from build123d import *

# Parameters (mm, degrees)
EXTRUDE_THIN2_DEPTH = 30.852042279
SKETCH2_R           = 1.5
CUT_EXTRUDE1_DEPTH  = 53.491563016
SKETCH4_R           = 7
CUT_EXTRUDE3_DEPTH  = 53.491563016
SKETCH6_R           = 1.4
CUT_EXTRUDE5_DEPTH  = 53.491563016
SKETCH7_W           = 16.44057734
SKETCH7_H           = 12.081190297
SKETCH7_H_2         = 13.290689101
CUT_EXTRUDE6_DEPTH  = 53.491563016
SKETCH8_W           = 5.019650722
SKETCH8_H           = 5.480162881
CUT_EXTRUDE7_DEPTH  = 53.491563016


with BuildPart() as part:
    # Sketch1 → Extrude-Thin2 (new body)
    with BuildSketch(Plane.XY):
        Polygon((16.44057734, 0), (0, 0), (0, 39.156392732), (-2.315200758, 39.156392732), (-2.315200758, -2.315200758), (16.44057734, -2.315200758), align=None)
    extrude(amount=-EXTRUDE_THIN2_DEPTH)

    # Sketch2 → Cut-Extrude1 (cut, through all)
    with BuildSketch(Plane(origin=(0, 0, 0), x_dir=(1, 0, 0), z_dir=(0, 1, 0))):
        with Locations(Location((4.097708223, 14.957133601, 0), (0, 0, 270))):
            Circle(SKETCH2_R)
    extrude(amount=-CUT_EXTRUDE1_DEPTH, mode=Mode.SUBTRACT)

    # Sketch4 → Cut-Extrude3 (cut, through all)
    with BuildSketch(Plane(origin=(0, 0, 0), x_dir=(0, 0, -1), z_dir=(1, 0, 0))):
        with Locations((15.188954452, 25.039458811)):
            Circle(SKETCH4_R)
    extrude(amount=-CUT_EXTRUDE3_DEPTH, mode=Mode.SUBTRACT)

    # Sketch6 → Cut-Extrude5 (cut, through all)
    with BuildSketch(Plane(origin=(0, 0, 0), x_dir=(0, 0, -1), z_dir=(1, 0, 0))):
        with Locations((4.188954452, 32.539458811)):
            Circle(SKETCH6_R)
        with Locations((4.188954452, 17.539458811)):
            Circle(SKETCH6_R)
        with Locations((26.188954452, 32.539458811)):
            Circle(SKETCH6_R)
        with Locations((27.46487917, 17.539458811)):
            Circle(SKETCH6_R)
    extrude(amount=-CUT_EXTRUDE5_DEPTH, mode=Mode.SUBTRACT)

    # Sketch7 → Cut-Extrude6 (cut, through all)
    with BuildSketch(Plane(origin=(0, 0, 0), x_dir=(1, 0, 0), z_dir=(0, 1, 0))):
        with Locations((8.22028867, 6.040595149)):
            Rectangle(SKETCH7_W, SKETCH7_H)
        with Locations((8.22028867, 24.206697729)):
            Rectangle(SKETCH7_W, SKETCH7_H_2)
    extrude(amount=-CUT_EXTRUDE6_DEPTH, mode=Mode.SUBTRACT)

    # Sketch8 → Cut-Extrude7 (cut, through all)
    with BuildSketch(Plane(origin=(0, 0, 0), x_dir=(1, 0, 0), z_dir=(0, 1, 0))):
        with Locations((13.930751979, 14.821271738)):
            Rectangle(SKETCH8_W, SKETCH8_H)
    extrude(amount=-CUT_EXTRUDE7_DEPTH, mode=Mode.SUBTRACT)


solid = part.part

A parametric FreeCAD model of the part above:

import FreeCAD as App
import Part
import Sketcher
from FreeCAD import Vector


def add_polygon(sketch, points):
    """Adds a closed chain of lines whose ends are joined by coincident constraints."""
    first, n = sketch.GeometryCount, len(points)
    for a, b in zip(points, points[1:] + points[:1]):
        sketch.addGeometry(Part.LineSegment(App.Vector(*a, 0), App.Vector(*b, 0)), False)
    for i in range(n):
        sketch.addConstraint(Sketcher.Constraint("Coincident", first + i, 2, first + (i + 1) % n, 1))

doc = App.newDocument("Part")
body = doc.addObject("PartDesign::Body", "Body")

# Sketch on XY plane
sketch1 = body.newObject("Sketcher::SketchObject", "Sketch")
sketch1.AttachmentSupport = (doc.getObject("XY_Plane"), [""])
sketch1.MapMode = "FlatFace"
add_polygon(sketch1, [(16.4, 0), (0, 0), (0, 39.2), (-2.3, 39.2), (-2.3, -2.3), (16.4, -2.3)])  # lines 0-5
sketch1.addConstraint(Sketcher.Constraint("Horizontal", 0))
sketch1.addConstraint(Sketcher.Constraint("Vertical", 1))
sketch1.addConstraint(Sketcher.Constraint("Horizontal", 2))
sketch1.addConstraint(Sketcher.Constraint("Vertical", 3))
sketch1.addConstraint(Sketcher.Constraint("Horizontal", 4))
sketch1.addConstraint(Sketcher.Constraint("Vertical", 5))
sketch1.addConstraint(Sketcher.Constraint("Coincident", 0, 2, -1, 1))
sketch1.addConstraint(Sketcher.Constraint("Equal", 2, 5))
sketch1.addConstraint(Sketcher.Constraint("DistanceX", 2, 2, 2, 1, 2.315201))
sketch1.addConstraint(Sketcher.Constraint("DistanceX", 4, 1, 4, 2, 18.755778))
sketch1.addConstraint(Sketcher.Constraint("DistanceY", 1, 1, 1, 2, 39.156393))
pad1 = body.newObject("PartDesign::Pad", "Pad")
pad1.Profile = sketch1
pad1.Length = 30.852042
pad1.Reversed = True

# Sketch on XZ plane
sketch2 = body.newObject("Sketcher::SketchObject", "Sketch001")
sketch2.AttachmentSupport = (doc.getObject("XZ_Plane"), [""])
sketch2.MapMode = "FlatFace"
sketch2.addGeometry(Part.Circle(Vector(4.1, -15, 0), Vector(0, 0, 1), 1.5), False)
sketch2.addConstraint(Sketcher.Constraint("Diameter", 0, 3.0))
sketch2.addConstraint(Sketcher.Constraint("DistanceX", -1, 1, 0, 3, 4.097708))
sketch2.addConstraint(Sketcher.Constraint("DistanceY", 0, 3, -1, 1, 14.957134))
pocket1 = body.newObject("PartDesign::Pocket", "Pocket")
pocket1.Profile = sketch2
pocket1.Type = "ThroughAll"
pocket1.Reversed = True

# Sketch on YZ plane
sketch3 = body.newObject("Sketcher::SketchObject", "Sketch002")
sketch3.AttachmentSupport = (doc.getObject("YZ_Plane"), [""])
sketch3.MapMode = "FlatFace"
sketch3.addGeometry(Part.Circle(Vector(25, -15, 0), Vector(0, 0, 1), 7), False)
sketch3.addConstraint(Sketcher.Constraint("Diameter", 0, 14.0))
sketch3.addConstraint(Sketcher.Constraint("DistanceX", -1, 1, 0, 3, 25.039459))
sketch3.addConstraint(Sketcher.Constraint("DistanceY", 0, 3, -1, 1, 15.188954))
pocket2 = body.newObject("PartDesign::Pocket", "Pocket001")
pocket2.Profile = sketch3
pocket2.Type = "ThroughAll"

# Sketch on YZ plane
sketch4 = body.newObject("Sketcher::SketchObject", "Sketch003")
sketch4.AttachmentSupport = (doc.getObject("YZ_Plane"), [""])
sketch4.MapMode = "FlatFace"
sketch4.addGeometry(Part.Circle(Vector(32.5, -4.2, 0), Vector(0, 0, 1), 1.4), False)
sketch4.addGeometry(Part.Circle(Vector(17.5, -4.2, 0), Vector(0, 0, 1), 1.4), False)
sketch4.addGeometry(Part.Circle(Vector(32.5, -26.2, 0), Vector(0, 0, 1), 1.4), False)
sketch4.addGeometry(Part.Circle(Vector(17.5, -27.5, 0), Vector(0, 0, 1), 1.4), False)
sketch4.addConstraint(Sketcher.Constraint("Equal", 0, 1))
sketch4.addConstraint(Sketcher.Constraint("Equal", 1, 2))
sketch4.addConstraint(Sketcher.Constraint("Equal", 2, 3))
sketch4.addConstraint(Sketcher.Constraint("Horizontal", 0, 3, 1, 3))
sketch4.addConstraint(Sketcher.Constraint("Vertical", 0, 3, 2, 3))
sketch4.addConstraint(Sketcher.Constraint("Vertical", 1, 3, 3, 3))
sketch4.addConstraint(Sketcher.Constraint("Diameter", 0, 2.8))
sketch4.addConstraint(Sketcher.Constraint("DistanceX", 1, 3, 0, 3, 15.0))
sketch4.addConstraint(Sketcher.Constraint("DistanceY", 2, 3, 0, 3, 22.0))
sketch4.addConstraint(Sketcher.Constraint("DistanceX", -1, 1, 0, 3, 32.539459))
sketch4.addConstraint(Sketcher.Constraint("DistanceY", 3, 3, -1, 1, 27.464879))
sketch4.addConstraint(Sketcher.Constraint("DistanceY", 0, 3, -1, 1, 4.188954))
pocket3 = body.newObject("PartDesign::Pocket", "Pocket002")
pocket3.Profile = sketch4
pocket3.Type = "ThroughAll"

# Sketch on XZ plane
sketch5 = body.newObject("Sketcher::SketchObject", "Sketch004")
sketch5.AttachmentSupport = (doc.getObject("XZ_Plane"), [""])
sketch5.MapMode = "FlatFace"
add_polygon(sketch5, [(0, -12), (0, 0), (16, 0), (16, -12)])  # lines 0-3
add_polygon(sketch5, [(0, -31), (0, -18), (16, -18), (16, -31)])  # lines 4-7
sketch5.addConstraint(Sketcher.Constraint("Vertical", 0))
sketch5.addConstraint(Sketcher.Constraint("Horizontal", 1))
sketch5.addConstraint(Sketcher.Constraint("Vertical", 2))
sketch5.addConstraint(Sketcher.Constraint("Horizontal", 3))
sketch5.addConstraint(Sketcher.Constraint("Vertical", 4))
sketch5.addConstraint(Sketcher.Constraint("Horizontal", 5))
sketch5.addConstraint(Sketcher.Constraint("Vertical", 6))
sketch5.addConstraint(Sketcher.Constraint("Horizontal", 7))
sketch5.addConstraint(Sketcher.Constraint("Coincident", 0, 2, -1, 1))
sketch5.addConstraint(Sketcher.Constraint("PointOnObject", 4, 2, -2))
sketch5.addConstraint(Sketcher.Constraint("Vertical", 2, 2, 5, 2))
sketch5.addConstraint(Sketcher.Constraint("DistanceY", 0, 1, 0, 2, 12.08119))
sketch5.addConstraint(Sketcher.Constraint("DistanceY", 4, 1, 4, 2, 13.290689))
sketch5.addConstraint(Sketcher.Constraint("DistanceX", 1, 1, 1, 2, 16.440577))
sketch5.addConstraint(Sketcher.Constraint("DistanceY", 6, 2, 2, 2, 18.770852))
pocket4 = body.newObject("PartDesign::Pocket", "Pocket003")
pocket4.Profile = sketch5
pocket4.Type = "ThroughAll"
pocket4.Reversed = True

# Sketch on XZ plane
sketch6 = body.newObject("Sketcher::SketchObject", "Sketch005")
sketch6.AttachmentSupport = (doc.getObject("XZ_Plane"), [""])
sketch6.MapMode = "FlatFace"
add_polygon(sketch6, [(11, -18), (11, -12), (16, -12), (16, -18)])  # lines 0-3
sketch6.addConstraint(Sketcher.Constraint("Vertical", 0))
sketch6.addConstraint(Sketcher.Constraint("Horizontal", 1))
sketch6.addConstraint(Sketcher.Constraint("Vertical", 2))
sketch6.addConstraint(Sketcher.Constraint("Horizontal", 3))
sketch6.addConstraint(Sketcher.Constraint("DistanceX", 1, 1, 1, 2, 5.019651))
sketch6.addConstraint(Sketcher.Constraint("DistanceY", 0, 1, 0, 2, 5.480163))
sketch6.addConstraint(Sketcher.Constraint("DistanceY", 0, 2, -1, 1, 12.08119))
sketch6.addConstraint(Sketcher.Constraint("DistanceX", -1, 1, 0, 2, 11.420927))
pocket5 = body.newObject("PartDesign::Pocket", "Pocket004")
pocket5.Profile = sketch6
pocket5.Type = "ThroughAll"
pocket5.Reversed = True

doc.recompute()
